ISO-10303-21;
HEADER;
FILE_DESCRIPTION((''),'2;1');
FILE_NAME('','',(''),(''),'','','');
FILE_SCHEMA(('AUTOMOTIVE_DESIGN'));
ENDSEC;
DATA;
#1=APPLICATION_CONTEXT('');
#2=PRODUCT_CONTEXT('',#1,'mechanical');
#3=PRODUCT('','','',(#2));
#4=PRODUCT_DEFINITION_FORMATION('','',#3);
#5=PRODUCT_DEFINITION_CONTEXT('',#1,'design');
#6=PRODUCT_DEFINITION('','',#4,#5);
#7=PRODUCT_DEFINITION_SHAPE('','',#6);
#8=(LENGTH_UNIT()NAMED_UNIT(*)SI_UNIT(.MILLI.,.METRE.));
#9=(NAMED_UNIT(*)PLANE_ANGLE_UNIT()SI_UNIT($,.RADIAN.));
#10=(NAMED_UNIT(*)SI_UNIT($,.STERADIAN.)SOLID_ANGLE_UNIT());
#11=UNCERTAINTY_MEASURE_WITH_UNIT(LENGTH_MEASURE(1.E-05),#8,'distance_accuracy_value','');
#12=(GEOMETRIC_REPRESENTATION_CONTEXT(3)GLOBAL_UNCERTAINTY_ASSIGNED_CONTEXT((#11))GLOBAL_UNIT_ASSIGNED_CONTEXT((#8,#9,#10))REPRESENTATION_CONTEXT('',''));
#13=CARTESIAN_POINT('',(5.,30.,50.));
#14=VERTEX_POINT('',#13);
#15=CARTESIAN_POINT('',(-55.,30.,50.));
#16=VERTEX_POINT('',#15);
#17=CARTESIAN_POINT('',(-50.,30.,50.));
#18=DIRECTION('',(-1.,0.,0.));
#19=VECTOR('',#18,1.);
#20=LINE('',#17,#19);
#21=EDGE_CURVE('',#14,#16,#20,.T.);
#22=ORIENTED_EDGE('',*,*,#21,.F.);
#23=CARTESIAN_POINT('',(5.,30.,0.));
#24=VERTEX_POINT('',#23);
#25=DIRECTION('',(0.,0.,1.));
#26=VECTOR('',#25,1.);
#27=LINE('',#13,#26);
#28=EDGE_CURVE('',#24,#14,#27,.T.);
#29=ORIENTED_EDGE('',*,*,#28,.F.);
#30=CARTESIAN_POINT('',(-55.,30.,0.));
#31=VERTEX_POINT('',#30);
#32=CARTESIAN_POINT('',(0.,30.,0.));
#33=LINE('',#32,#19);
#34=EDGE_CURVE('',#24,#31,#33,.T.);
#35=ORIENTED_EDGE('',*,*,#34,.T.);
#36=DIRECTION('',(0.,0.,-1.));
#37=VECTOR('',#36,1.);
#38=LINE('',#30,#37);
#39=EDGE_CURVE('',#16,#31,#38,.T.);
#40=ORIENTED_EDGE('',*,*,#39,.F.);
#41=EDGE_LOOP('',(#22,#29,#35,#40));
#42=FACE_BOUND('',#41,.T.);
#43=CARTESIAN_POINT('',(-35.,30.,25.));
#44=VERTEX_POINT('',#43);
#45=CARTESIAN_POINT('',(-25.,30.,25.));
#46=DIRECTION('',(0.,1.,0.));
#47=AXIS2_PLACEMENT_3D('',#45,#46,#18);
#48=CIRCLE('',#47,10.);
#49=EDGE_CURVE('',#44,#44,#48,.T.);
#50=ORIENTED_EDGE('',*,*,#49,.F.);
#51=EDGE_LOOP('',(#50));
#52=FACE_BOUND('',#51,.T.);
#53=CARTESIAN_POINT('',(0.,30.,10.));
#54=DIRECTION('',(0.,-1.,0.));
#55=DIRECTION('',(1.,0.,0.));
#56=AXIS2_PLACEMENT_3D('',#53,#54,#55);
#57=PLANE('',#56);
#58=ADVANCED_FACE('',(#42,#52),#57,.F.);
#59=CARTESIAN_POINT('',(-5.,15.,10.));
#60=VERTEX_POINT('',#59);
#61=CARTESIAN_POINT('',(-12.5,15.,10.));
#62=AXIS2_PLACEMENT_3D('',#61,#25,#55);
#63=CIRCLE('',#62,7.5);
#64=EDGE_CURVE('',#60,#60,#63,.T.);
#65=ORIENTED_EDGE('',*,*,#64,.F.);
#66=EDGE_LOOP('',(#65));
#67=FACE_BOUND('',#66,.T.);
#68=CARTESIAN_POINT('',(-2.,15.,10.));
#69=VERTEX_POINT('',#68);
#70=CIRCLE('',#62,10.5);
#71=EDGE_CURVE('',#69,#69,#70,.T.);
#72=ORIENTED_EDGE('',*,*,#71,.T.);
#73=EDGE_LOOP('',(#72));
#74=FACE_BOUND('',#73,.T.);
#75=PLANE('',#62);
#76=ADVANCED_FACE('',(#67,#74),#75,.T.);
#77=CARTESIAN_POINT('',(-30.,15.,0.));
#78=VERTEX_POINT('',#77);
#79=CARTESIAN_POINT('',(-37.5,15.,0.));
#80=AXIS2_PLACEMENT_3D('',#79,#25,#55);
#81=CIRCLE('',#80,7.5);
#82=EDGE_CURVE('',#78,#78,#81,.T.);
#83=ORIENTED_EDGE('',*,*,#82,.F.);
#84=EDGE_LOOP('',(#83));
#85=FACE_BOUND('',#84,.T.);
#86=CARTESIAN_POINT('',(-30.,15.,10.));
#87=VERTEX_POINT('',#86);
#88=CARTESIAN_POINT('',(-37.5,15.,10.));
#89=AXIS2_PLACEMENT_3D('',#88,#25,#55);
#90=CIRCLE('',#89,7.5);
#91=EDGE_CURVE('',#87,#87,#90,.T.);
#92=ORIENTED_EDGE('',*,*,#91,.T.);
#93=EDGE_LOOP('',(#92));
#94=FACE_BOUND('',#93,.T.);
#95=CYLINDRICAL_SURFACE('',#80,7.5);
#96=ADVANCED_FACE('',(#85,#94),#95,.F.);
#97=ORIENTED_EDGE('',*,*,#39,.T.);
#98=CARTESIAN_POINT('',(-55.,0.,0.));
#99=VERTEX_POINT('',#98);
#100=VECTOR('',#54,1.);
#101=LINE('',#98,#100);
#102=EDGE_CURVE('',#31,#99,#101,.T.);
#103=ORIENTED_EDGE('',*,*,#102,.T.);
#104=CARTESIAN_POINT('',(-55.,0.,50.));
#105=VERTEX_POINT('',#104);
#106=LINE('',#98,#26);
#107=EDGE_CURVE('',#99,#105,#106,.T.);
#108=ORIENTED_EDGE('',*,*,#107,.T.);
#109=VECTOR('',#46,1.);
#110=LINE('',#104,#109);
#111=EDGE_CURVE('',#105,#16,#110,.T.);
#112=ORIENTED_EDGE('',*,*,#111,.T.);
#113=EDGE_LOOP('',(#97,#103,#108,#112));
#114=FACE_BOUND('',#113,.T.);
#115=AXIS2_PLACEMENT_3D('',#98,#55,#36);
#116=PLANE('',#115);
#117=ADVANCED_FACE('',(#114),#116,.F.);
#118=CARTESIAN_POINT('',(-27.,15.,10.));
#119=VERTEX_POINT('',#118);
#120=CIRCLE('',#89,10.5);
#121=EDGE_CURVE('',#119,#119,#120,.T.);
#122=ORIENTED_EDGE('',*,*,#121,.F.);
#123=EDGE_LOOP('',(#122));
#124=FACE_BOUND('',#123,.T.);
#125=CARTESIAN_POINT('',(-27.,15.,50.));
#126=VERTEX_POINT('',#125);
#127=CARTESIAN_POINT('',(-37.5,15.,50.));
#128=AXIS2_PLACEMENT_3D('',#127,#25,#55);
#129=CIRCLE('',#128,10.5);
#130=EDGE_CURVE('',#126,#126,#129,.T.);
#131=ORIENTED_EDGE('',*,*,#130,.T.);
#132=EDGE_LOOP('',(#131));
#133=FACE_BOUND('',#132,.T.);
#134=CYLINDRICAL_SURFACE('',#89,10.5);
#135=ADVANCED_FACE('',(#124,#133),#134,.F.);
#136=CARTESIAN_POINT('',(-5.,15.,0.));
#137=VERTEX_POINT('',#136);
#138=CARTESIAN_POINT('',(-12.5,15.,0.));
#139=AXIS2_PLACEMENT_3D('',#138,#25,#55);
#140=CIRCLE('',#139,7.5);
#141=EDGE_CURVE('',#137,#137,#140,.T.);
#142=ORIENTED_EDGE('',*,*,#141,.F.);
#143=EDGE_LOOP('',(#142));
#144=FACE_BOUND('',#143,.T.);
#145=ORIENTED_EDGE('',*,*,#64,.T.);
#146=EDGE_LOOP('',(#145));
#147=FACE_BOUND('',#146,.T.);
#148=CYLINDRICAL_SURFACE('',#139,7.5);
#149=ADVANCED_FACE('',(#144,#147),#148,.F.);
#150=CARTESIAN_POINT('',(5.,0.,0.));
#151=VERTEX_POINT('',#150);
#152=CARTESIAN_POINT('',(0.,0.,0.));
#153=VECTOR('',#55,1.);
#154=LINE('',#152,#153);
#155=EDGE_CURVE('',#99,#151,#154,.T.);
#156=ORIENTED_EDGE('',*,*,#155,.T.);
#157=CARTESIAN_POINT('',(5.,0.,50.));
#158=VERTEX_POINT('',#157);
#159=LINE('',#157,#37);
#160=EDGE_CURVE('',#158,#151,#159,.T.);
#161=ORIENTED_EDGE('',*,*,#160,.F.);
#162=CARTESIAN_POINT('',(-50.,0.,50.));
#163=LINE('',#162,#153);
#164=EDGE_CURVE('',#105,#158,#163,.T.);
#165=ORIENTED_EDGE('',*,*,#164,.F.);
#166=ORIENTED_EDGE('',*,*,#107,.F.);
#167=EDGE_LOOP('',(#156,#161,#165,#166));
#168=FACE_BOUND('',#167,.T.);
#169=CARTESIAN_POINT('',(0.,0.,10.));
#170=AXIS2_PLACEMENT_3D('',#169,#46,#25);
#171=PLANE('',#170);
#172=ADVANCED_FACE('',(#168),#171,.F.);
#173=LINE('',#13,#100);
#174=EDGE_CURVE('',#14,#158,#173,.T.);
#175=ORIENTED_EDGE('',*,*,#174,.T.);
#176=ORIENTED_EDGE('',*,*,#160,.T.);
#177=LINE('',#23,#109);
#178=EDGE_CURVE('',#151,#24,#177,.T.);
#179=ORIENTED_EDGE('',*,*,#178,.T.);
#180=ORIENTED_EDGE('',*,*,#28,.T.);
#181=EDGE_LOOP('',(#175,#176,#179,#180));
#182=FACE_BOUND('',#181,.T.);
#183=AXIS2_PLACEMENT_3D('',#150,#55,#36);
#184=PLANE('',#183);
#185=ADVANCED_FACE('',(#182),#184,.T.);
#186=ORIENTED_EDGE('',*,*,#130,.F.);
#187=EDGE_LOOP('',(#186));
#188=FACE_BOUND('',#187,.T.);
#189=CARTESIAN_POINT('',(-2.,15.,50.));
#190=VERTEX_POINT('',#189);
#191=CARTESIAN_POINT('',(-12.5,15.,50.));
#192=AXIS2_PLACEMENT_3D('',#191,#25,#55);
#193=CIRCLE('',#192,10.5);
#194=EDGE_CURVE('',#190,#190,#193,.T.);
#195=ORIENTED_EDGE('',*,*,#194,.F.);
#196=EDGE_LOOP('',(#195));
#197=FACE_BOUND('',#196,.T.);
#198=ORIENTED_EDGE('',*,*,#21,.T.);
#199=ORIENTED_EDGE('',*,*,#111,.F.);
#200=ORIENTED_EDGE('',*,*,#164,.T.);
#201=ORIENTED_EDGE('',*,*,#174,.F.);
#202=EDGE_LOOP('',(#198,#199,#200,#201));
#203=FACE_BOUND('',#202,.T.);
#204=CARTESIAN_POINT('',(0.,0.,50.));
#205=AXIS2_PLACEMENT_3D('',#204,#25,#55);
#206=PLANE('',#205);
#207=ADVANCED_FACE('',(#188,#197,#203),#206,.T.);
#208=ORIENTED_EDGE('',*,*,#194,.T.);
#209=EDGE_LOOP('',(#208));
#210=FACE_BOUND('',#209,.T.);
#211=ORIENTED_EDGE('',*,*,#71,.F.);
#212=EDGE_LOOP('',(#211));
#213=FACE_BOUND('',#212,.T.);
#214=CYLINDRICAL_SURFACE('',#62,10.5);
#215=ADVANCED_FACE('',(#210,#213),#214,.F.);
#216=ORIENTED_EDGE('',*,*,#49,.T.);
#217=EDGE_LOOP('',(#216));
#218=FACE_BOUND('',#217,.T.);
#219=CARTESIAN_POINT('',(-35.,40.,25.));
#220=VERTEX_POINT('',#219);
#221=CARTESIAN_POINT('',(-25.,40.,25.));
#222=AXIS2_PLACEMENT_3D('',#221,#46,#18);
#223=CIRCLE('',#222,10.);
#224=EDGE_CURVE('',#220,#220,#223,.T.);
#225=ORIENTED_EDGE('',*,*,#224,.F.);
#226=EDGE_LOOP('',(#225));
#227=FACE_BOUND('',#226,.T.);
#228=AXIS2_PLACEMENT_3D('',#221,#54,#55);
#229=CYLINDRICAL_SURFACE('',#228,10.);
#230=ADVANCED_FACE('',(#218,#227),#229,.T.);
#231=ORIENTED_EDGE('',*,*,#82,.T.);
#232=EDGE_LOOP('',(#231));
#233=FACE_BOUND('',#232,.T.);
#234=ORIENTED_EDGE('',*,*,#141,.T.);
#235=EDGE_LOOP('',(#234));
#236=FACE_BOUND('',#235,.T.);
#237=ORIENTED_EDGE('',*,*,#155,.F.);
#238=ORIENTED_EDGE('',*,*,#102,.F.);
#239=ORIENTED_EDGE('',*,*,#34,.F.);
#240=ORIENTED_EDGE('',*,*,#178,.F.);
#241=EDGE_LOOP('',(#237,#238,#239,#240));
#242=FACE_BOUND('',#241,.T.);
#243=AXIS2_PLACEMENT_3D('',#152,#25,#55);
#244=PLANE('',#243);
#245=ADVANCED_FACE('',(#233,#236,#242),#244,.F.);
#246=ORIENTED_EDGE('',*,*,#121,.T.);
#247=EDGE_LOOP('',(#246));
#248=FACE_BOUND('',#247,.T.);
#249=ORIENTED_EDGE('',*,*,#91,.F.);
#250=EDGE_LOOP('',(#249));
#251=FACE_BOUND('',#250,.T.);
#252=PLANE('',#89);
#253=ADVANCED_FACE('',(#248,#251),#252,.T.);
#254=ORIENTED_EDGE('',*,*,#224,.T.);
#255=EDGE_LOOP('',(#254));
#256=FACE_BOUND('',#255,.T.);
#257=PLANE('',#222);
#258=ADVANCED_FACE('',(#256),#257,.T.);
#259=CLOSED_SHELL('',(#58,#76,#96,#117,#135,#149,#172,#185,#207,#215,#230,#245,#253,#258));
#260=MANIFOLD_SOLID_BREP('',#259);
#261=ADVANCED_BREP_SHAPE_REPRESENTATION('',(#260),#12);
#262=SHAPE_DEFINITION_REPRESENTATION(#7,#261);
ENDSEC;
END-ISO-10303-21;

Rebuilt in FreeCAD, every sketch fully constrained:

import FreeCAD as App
import Part
import Sketcher
from FreeCAD import Vector


def add_polygon(sketch, points):
    """Adds a closed chain of lines whose ends are joined by coincident constraints."""
    first, n = sketch.GeometryCount, len(points)
    for a, b in zip(points, points[1:] + points[:1]):
        sketch.addGeometry(Part.LineSegment(App.Vector(*a, 0), App.Vector(*b, 0)), False)
    for i in range(n):
        sketch.addConstraint(Sketcher.Constraint("Coincident", first + i, 2, first + (i + 1) % n, 1))

doc = App.newDocument("Part")
body = doc.addObject("PartDesign::Body", "Body")

# Sketch on XY plane
sketch1 = body.newObject("Sketcher::SketchObject", "Sketch")
sketch1.AttachmentSupport = (doc.getObject("XY_Plane"), [""])
sketch1.MapMode = "FlatFace"
add_polygon(sketch1, [(-50, 30), (-50, 0), (0, 0), (0, 30)])  # lines 0-3
sketch1.addConstraint([
    Sketcher.Constraint("Vertical", 0),
    Sketcher.Constraint("Horizontal", 1),
    Sketcher.Constraint("Vertical", 2),
    Sketcher.Constraint("Horizontal", 3),
    Sketcher.Constraint("Coincident", 1, 2, -1, 1),
    Sketcher.Constraint("DistanceX", 1, 1, 1, 2, 50.0),
    Sketcher.Constraint("DistanceY", 0, 2, 0, 1, 30.0),
])
pad1 = body.newObject("PartDesign::Pad", "Pad")
pad1.Profile = sketch1
pad1.Length = 10

# Sketch on XY plane
sketch2 = body.newObject("Sketcher::SketchObject", "Sketch001")
sketch2.AttachmentSupport = (doc.getObject("XY_Plane"), [""])
sketch2.MapMode = "FlatFace"
sketch2.AttachmentOffset = App.Placement(Vector(0, 0, 10), App.Rotation())
sketch2.addGeometry([
    Part.Circle(Vector(-38, 15, 0), Vector(0, 0, 1), 8),
    Part.Circle(Vector(-12, 15, 0), Vector(0, 0, 1), 8),
], False)
sketch2.addConstraint([
    Sketcher.Constraint("Equal", 0, 1),
    Sketcher.Constraint("Horizontal", 0, 3, 1, 3),
    Sketcher.Constraint("Diameter", 0, 15.0),
    Sketcher.Constraint("DistanceY", -1, 1, 0, 3, 15.0),
    Sketcher.Constraint("DistanceX", 0, 3, 1, 3, 25.0),
    Sketcher.Constraint("DistanceX", 0, 3, -1, 1, 37.5),
])
pocket1 = body.newObject("PartDesign::Pocket", "Pocket")
pocket1.Profile = sketch2
pocket1.Length = 10

# Sketch on XY plane
sketch3 = body.newObject("Sketcher::SketchObject", "Sketch002")
sketch3.AttachmentSupport = (doc.getObject("XY_Plane"), [""])
sketch3.MapMode = "FlatFace"
sketch3.AttachmentOffset = App.Placement(Vector(0, 0, 10), App.Rotation())
add_polygon(sketch3, [(-50, 30), (-50, 0), (0, 0), (0, 30)])  # lines 0-3
sketch3.addConstraint([
    Sketcher.Constraint("Vertical", 0),
    Sketcher.Constraint("Horizontal", 1),
    Sketcher.Constraint("Vertical", 2),
    Sketcher.Constraint("Horizontal", 3),
    Sketcher.Constraint("Coincident", 1, 2, -1, 1),
    Sketcher.Constraint("DistanceX", 1, 1, 1, 2, 50.0),
    Sketcher.Constraint("DistanceY", 0, 2, 0, 1, 30.0),
])
pad2 = body.newObject("PartDesign::Pad", "Pad001")
pad2.Profile = sketch3
pad2.Length = 40

# Sketch on XY plane
sketch4 = body.newObject("Sketcher::SketchObject", "Sketch003")
sketch4.AttachmentSupport = (doc.getObject("XY_Plane"), [""])
sketch4.MapMode = "FlatFace"
sketch4.AttachmentOffset = App.Placement(Vector(0, 0, 50), App.Rotation())
sketch4.addGeometry([
    Part.Circle(Vector(-38, 15, 0), Vector(0, 0, 1), 10),
    Part.Circle(Vector(-12, 15, 0), Vector(0, 0, 1), 10),
], False)
sketch4.addConstraint([
    Sketcher.Constraint("Equal", 0, 1),
    Sketcher.Constraint("Horizontal", 0, 3, 1, 3),
    Sketcher.Constraint("Diameter", 0, 21.0),
    Sketcher.Constraint("DistanceY", -1, 1, 0, 3, 15.0),
    Sketcher.Constraint("DistanceX", 0, 3, 1, 3, 25.0),
    Sketcher.Constraint("DistanceX", 0, 3, -1, 1, 37.5),
])
pocket2 = body.newObject("PartDesign::Pocket", "Pocket001")
pocket2.Profile = sketch4
pocket2.Length = 40

# Sketch on YZ plane
sketch5 = body.newObject("Sketcher::SketchObject", "Sketch004")
sketch5.AttachmentSupport = (doc.getObject("YZ_Plane"), [""])
sketch5.MapMode = "FlatFace"
add_polygon(sketch5, [(30, 50), (0, 50), (0, 0), (30, 0)])  # lines 0-3
sketch5.addConstraint([
    Sketcher.Constraint("Horizontal", 0),
    Sketcher.Constraint("Vertical", 1),
    Sketcher.Constraint("Horizontal", 2),
    Sketcher.Constraint("Vertical", 3),
    Sketcher.Constraint("Coincident", 1, 2, -1, 1),
    Sketcher.Constraint("DistanceX", 0, 2, 0, 1, 30.0),
    Sketcher.Constraint("DistanceY", 1, 2, 1, 1, 50.0),
])
pad3 = body.newObject("PartDesign::Pad", "Pad002")
pad3.Profile = sketch5
pad3.Length = 5

# Sketch on YZ plane
sketch6 = body.newObject("Sketcher::SketchObject", "Sketch005")
sketch6.AttachmentSupport = (doc.getObject("YZ_Plane"), [""])
sketch6.MapMode = "FlatFace"
sketch6.AttachmentOffset = App.Placement(Vector(0, 0, -50), App.Rotation())
add_polygon(sketch6, [(30, 0), (0, 0), (0, 50), (30, 50)])  # lines 0-3
sketch6.addConstraint([
    Sketcher.Constraint("Horizontal", 0),
    Sketcher.Constraint("Vertical", 1),
    Sketcher.Constraint("Horizontal", 2),
    Sketcher.Constraint("Vertical", 3),
    Sketcher.Constraint("Coincident", 0, 2, -1, 1),
    Sketcher.Constraint("DistanceX", 0, 2, 0, 1, 30.0),
    Sketcher.Constraint("DistanceY", 1, 1, 1, 2, 50.0),
])
pad4 = body.newObject("PartDesign::Pad", "Pad003")
pad4.Profile = sketch6
pad4.Length = 5
pad4.Reversed = True

# Sketch on XZ plane
sketch7 = body.newObject("Sketcher::SketchObject", "Sketch006")
sketch7.AttachmentSupport = (doc.getObject("XZ_Plane"), [""])
sketch7.MapMode = "FlatFace"
sketch7.AttachmentOffset = App.Placement(Vector(0, 0, -30), App.Rotation())
sketch7.addGeometry(Part.Circle(Vector(-25, 25, 0), Vector(0, 0, 1), 10), False)
sketch7.addConstraint([
    Sketcher.Constraint("Diameter", 0, 20.0),
    Sketcher.Constraint("DistanceX", 0, 3, -1, 1, 25.0),
    Sketcher.Constraint("DistanceY", -1, 1, 0, 3, 25.0),
])
pad5 = body.newObject("PartDesign::Pad", "Pad004")
pad5.Profile = sketch7
pad5.Length = 10
pad5.Reversed = True

doc.recompute()
